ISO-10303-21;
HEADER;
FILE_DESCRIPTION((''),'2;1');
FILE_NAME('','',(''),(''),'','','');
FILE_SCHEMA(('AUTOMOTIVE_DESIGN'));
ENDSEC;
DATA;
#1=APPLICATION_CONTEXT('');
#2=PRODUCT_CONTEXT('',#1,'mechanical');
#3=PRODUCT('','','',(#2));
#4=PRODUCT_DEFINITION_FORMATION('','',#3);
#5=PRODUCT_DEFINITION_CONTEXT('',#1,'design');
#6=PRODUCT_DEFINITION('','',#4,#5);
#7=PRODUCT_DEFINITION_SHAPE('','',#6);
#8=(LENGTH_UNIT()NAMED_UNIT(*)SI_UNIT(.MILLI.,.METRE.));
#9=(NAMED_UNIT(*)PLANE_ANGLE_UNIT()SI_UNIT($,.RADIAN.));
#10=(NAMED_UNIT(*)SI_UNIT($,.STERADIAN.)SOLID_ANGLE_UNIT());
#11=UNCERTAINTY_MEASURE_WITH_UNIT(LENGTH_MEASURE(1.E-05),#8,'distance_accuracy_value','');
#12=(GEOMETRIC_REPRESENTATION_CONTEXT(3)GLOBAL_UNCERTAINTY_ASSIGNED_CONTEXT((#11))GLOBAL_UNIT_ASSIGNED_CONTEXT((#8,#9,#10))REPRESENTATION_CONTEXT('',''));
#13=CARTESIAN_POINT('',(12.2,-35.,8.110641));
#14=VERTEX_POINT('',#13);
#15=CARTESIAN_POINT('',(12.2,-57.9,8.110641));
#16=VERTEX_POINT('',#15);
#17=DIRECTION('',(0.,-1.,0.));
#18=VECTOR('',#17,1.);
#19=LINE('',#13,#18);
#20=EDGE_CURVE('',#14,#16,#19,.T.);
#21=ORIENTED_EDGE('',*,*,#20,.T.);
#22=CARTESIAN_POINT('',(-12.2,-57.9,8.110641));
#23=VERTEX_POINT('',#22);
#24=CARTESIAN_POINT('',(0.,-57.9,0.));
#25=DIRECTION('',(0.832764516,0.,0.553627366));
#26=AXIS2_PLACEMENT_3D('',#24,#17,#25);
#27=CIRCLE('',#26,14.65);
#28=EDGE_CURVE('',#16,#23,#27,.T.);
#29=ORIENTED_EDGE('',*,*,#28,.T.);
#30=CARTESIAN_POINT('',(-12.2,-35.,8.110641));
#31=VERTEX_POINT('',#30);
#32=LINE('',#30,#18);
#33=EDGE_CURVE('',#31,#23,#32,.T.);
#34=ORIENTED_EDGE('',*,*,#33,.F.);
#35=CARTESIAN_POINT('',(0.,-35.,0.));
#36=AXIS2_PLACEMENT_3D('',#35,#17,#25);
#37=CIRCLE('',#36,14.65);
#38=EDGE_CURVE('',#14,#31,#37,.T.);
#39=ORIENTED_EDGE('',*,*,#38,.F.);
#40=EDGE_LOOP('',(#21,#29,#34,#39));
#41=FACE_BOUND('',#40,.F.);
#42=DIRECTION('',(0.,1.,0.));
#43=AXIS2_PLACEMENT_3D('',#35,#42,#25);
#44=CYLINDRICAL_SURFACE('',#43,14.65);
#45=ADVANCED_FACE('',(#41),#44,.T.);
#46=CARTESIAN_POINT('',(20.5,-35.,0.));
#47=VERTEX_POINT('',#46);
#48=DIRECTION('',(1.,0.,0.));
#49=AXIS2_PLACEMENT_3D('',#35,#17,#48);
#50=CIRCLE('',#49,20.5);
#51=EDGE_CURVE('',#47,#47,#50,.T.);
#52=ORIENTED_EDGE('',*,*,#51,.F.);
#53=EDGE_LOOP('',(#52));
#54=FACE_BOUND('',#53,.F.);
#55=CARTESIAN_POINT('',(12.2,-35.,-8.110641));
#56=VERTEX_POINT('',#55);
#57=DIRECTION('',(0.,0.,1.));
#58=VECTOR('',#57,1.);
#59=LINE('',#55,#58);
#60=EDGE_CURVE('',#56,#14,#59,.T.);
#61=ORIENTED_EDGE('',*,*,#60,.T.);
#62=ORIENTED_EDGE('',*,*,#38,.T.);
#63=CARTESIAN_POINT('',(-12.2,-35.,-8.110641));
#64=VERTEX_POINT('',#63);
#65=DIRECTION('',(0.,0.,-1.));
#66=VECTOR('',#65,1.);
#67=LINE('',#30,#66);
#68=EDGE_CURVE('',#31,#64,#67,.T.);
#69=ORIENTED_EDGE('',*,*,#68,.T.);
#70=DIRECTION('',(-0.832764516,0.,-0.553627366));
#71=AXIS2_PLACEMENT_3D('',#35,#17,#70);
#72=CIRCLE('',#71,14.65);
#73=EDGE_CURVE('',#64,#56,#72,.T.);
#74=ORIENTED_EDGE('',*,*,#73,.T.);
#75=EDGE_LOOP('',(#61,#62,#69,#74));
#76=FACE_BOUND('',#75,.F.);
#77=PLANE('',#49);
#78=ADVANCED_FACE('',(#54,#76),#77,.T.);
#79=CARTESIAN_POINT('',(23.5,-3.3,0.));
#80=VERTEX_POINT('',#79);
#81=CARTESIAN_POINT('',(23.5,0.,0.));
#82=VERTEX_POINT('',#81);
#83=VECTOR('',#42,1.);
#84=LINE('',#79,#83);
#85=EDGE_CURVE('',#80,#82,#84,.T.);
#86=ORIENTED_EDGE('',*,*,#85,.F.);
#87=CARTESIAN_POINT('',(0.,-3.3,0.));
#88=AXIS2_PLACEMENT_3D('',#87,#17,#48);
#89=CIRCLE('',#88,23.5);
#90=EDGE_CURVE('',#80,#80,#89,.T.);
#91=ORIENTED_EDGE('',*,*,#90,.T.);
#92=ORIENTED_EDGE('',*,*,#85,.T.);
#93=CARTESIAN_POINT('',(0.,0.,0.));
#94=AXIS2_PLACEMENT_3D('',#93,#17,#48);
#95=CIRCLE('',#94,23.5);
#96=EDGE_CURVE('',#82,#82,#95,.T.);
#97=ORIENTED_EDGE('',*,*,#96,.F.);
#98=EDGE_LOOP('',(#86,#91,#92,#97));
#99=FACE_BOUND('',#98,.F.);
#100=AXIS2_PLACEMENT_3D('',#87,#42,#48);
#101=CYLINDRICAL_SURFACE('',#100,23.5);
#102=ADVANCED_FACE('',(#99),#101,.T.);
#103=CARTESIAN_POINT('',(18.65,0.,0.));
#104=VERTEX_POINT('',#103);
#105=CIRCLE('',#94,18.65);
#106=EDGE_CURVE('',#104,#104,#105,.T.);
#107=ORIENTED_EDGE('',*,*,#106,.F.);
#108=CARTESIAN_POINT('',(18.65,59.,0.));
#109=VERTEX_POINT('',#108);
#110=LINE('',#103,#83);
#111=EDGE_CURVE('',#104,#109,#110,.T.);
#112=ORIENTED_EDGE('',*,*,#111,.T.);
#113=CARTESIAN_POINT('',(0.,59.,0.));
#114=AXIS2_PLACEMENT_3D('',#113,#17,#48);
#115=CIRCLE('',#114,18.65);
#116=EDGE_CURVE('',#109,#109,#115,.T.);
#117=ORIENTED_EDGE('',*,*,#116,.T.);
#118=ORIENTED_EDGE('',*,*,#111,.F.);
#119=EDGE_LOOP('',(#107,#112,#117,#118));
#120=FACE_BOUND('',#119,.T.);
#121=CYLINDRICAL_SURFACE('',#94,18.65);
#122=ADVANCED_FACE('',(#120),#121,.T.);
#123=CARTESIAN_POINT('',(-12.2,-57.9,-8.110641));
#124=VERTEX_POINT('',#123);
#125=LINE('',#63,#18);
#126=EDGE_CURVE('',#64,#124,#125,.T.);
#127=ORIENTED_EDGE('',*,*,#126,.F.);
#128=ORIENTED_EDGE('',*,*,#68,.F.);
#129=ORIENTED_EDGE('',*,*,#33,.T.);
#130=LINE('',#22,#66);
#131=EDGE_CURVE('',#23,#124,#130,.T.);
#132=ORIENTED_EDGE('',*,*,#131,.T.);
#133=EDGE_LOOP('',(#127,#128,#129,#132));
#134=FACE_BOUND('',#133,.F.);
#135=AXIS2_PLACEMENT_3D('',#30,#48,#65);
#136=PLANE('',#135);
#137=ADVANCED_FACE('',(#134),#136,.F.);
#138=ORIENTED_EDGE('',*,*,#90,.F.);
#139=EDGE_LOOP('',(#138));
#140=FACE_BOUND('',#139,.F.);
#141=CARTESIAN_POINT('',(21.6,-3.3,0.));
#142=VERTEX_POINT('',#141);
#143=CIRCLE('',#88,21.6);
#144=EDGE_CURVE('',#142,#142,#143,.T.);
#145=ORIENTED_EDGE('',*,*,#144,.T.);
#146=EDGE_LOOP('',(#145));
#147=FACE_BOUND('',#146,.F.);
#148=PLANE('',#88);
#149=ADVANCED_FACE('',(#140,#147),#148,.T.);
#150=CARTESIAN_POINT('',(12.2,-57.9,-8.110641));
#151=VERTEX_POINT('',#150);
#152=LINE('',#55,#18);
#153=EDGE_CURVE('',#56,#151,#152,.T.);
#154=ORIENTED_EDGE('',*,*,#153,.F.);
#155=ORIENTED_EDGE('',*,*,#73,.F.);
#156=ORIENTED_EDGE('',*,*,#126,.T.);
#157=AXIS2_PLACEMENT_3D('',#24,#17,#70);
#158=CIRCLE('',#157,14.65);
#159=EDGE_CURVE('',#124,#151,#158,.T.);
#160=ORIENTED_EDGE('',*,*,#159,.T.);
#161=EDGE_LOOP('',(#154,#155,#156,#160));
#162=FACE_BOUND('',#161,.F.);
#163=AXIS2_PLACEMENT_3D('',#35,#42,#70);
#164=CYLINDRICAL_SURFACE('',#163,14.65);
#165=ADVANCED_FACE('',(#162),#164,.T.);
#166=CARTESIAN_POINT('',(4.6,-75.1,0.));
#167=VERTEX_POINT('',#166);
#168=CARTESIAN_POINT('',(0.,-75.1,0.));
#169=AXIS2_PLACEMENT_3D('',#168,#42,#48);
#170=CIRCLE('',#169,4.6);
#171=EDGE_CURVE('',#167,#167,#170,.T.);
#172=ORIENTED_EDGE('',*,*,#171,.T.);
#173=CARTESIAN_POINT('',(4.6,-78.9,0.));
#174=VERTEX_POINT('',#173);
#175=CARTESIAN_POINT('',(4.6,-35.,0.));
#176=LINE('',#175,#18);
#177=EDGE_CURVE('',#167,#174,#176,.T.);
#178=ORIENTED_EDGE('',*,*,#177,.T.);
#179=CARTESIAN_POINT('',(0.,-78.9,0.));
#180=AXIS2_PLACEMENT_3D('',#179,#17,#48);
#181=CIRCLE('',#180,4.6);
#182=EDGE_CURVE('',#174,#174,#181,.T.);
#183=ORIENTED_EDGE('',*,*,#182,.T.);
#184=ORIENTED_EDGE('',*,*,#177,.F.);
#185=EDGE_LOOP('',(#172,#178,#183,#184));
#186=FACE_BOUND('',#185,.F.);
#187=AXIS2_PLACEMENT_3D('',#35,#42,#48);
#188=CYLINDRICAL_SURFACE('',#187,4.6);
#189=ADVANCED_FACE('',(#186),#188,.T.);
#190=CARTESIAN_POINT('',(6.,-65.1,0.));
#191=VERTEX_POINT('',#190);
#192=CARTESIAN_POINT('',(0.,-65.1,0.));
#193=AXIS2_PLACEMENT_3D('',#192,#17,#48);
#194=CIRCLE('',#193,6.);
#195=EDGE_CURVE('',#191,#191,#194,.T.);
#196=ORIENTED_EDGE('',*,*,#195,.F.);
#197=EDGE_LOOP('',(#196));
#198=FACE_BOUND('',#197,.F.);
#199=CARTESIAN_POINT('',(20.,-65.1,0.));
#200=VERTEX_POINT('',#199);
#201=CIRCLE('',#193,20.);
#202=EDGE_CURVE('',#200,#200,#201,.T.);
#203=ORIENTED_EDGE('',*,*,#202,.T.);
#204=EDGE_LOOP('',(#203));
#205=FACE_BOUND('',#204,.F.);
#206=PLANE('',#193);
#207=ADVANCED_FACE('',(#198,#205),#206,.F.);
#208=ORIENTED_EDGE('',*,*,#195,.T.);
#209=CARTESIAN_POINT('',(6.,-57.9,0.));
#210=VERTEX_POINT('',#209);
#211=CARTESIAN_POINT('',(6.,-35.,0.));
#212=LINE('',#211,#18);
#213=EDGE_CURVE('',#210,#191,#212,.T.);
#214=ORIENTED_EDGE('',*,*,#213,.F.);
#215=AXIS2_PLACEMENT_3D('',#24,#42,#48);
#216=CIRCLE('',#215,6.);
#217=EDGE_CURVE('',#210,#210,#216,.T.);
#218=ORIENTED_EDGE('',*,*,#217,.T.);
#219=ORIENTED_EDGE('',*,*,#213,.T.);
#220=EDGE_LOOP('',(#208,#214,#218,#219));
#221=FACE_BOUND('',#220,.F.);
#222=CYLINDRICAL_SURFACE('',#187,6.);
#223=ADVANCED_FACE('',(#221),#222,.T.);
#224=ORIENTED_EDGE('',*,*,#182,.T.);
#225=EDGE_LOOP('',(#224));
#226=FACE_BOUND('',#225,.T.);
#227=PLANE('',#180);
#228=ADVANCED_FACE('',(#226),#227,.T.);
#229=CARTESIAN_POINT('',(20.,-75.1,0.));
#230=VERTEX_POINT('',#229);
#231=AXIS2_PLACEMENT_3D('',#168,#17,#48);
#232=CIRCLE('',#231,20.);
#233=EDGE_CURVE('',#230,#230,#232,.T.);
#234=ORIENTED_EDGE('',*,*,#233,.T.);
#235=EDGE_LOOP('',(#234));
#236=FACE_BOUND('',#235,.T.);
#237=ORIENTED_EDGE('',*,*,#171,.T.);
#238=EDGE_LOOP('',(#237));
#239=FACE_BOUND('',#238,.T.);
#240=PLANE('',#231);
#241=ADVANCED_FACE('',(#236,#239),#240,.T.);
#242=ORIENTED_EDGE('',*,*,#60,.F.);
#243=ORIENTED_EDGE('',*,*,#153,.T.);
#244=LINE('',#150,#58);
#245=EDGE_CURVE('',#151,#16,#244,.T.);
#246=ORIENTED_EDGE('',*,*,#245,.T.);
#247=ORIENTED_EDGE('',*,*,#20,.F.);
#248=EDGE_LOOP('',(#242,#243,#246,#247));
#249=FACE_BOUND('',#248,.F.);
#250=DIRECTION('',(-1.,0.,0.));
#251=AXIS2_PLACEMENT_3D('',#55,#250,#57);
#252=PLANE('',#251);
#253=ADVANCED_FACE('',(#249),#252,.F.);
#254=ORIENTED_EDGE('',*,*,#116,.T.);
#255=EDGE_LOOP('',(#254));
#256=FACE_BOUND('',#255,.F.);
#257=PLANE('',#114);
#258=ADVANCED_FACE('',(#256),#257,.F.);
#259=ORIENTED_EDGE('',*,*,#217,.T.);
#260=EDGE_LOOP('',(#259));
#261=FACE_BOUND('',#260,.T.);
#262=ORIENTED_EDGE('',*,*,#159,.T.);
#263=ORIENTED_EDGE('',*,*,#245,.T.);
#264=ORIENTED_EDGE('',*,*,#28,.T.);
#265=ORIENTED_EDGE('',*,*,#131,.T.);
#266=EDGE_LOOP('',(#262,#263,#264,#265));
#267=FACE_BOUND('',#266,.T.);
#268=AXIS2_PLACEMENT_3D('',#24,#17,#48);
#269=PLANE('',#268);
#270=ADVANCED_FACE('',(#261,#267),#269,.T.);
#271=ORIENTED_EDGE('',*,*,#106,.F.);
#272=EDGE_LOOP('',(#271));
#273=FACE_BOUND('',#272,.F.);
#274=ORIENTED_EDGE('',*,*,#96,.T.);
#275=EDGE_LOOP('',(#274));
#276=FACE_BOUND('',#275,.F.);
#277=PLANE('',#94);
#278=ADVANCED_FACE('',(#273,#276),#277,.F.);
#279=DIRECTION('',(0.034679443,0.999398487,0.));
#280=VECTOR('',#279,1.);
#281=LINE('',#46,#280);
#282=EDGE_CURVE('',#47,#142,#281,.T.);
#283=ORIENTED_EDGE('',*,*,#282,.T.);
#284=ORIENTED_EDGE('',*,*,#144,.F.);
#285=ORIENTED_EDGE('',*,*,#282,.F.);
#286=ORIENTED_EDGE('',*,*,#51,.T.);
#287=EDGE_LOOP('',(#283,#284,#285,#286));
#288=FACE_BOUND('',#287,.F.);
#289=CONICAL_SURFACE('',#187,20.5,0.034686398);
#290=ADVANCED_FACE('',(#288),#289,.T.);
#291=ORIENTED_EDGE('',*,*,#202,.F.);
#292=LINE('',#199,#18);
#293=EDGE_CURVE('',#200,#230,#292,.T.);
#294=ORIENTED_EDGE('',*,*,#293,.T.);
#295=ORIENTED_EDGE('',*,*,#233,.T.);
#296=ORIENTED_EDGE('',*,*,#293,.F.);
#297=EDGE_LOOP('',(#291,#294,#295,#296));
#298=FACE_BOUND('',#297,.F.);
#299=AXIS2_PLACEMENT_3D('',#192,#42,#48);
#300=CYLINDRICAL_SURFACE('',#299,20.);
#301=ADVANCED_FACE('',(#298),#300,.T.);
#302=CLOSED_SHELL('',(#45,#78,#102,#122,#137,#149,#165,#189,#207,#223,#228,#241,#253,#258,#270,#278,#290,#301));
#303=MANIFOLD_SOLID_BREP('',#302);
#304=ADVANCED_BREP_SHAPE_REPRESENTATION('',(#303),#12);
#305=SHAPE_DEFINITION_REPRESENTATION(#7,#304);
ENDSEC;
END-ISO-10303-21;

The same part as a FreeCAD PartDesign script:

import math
import FreeCAD as App
import Part
import Sketcher

V = App.Vector
Q = App.Units.Quantity


def add_polygon(sketch, points):
    """Adds a closed chain of lines whose ends are joined by coincident constraints."""
    first, n = sketch.GeometryCount, len(points)
    for a, b in zip(points, points[1:] + points[:1]):
        sketch.addGeometry(Part.LineSegment(App.Vector(*a, 0), App.Vector(*b, 0)), False)
    for i in range(n):
        sketch.addConstraint(Sketcher.Constraint("Coincident", first + i, 2, first + (i + 1) % n, 1))

doc = App.newDocument("Part")
params = doc.addObject("Spreadsheet::Sheet", "Params")
for row, (alias, value) in enumerate([
    ("sketch1_diameter", "37.3 mm"),
    ("pad1_length", "59 mm"),
    ("sketch2_height", "35 mm"),
    ("sketch2_width", "23.5 mm"),
    ("sketch2_width2", "20.5 mm"),
    ("sketch2_width3", "1.9 mm"),
    ("sketch2_height2", "3.3 mm"),
    ("revolution_angle", "360 deg"),
    ("sketch3_radius", "14.65 mm"),
    ("pad2_length", "22.9 mm"),
    ("sketch4_diameter", "12 mm"),
    ("pad3_length", "30.1 mm"),
    ("sketch5_diameter", "9.2 mm"),
    ("pad4_length", "43.9 mm"),
    ("sketch6_diameter", "40 mm"),
    ("pad5_length", "10 mm"),
], start=1):
    params.set(f"A{row}", alias)
    params.set(f"B{row}", "=" + value)
    params.setAlias(f"B{row}", alias)

body = doc.addObject("PartDesign::Body", "Body")

# Sketch on XZ plane
sketch1 = body.newObject("Sketcher::SketchObject", "Sketch")
sketch1.AttachmentSupport = (doc.getObject("XZ_Plane"), [""])
sketch1.MapMode = "FlatFace"
sketch1.addGeometry(Part.Circle(V(0, 0, 0), V(0, 0, 1), 19), False)
sketch1.addConstraint(Sketcher.Constraint("Coincident", 0, 3, -1, 1))
sketch1.addConstraint(Sketcher.Constraint("Diameter", 0, Q("37.3 mm")))
sketch1.setExpression("Constraints[1]", "Params.sketch1_diameter")
pad1 = body.newObject("PartDesign::Pad", "Pad")
pad1.Profile = sketch1
pad1.setExpression("Length", "Params.pad1_length")
pad1.Reversed = True

# Sketch on XY plane
sketch2 = body.newObject("Sketcher::SketchObject", "Sketch001")
sketch2.AttachmentSupport = (doc.getObject("XY_Plane"), [""])
sketch2.MapMode = "FlatFace"
add_polygon(sketch2, [(23.5, 0), (0, 0), (0, -35), (20.5, -35), (21.6, -3.3), (23.5, -3.3)])  # lines 0-5
sketch2.addConstraint(Sketcher.Constraint("Horizontal", 0))
sketch2.addConstraint(Sketcher.Constraint("Vertical", 1))
sketch2.addConstraint(Sketcher.Constraint("Horizontal", 2))
sketch2.addConstraint(Sketcher.Constraint("Horizontal", 4))
sketch2.addConstraint(Sketcher.Constraint("Vertical", 5))
sketch2.addConstraint(Sketcher.Constraint("Coincident", 0, 2, -1, 1))
sketch2.addConstraint(Sketcher.Constraint("DistanceY", 1, 2, 1, 1, Q("35 mm")))
sketch2.addConstraint(Sketcher.Constraint("DistanceX", 0, 2, 0, 1, Q("23.5 mm")))
sketch2.addConstraint(Sketcher.Constraint("DistanceX", 2, 1, 2, 2, Q("20.5 mm")))
sketch2.addConstraint(Sketcher.Constraint("DistanceX", 4, 1, 4, 2, Q("1.9 mm")))
sketch2.addConstraint(Sketcher.Constraint("DistanceY", 5, 1, 5, 2, Q("3.3 mm")))
sketch2.setExpression("Constraints[12]", "Params.sketch2_height")
sketch2.setExpression("Constraints[13]", "Params.sketch2_width")
sketch2.setExpression("Constraints[14]", "Params.sketch2_width2")
sketch2.setExpression("Constraints[15]", "Params.sketch2_width3")
sketch2.setExpression("Constraints[16]", "Params.sketch2_height2")
revolution = body.newObject("PartDesign::Revolution", "Revolution")
revolution.Profile = sketch2
revolution.ReferenceAxis = (sketch2, ["V_Axis"])
revolution.setExpression("Angle", "Params.revolution_angle")

# Sketch on XZ plane
sketch3 = body.newObject("Sketcher::SketchObject", "Sketch002")
sketch3.AttachmentSupport = (doc.getObject("XZ_Plane"), [""])
sketch3.MapMode = "FlatFace"
sketch3.AttachmentOffset = App.Placement(V(0, 0, 35), App.Rotation())
sketch3.addGeometry(Part.ArcOfCircle(Part.Circle(V(0, 0, 0), V(0, 0, 1), 15), math.radians(34), math.radians(146)), False)
sketch3.addGeometry(Part.LineSegment(V(-12, 8, 0), V(-12, -8, 0)), False)
sketch3.addGeometry(Part.ArcOfCircle(Part.Circle(V(0, 0, 0), V(0, 0, 1), 15), math.radians(-146), math.radians(-34)), False)
sketch3.addGeometry(Part.LineSegment(V(12, -8, 0), V(12, 8, 0)), False)
sketch3.addConstraint(Sketcher.Constraint("Coincident", 0, 2, 1, 1))
sketch3.addConstraint(Sketcher.Constraint("Coincident", 1, 2, 2, 1))
sketch3.addConstraint(Sketcher.Constraint("Coincident", 2, 2, 3, 1))
sketch3.addConstraint(Sketcher.Constraint("Coincident", 3, 2, 0, 1))
sketch3.addConstraint(Sketcher.Constraint("Vertical", 1))
sketch3.addConstraint(Sketcher.Constraint("Vertical", 3))
sketch3.addConstraint(Sketcher.Constraint("Coincident", 0, 3, -1, 1))
sketch3.addConstraint(Sketcher.Constraint("Coincident", 2, 3, -1, 1))
sketch3.addConstraint(Sketcher.Constraint("Equal", 0, 2))
sketch3.addConstraint(Sketcher.Constraint("Horizontal", 1, 2, 2, 2))
sketch3.addConstraint(Sketcher.Constraint("Radius", 0, Q("14.65 mm")))
sketch3.addConstraint(Sketcher.Constraint("DistanceX", 0, 2, -1, 1, Q("12.2 mm")))
sketch3.setExpression("Constraints[10]", "Params.sketch3_radius")
pad2 = body.newObject("PartDesign::Pad", "Pad001")
pad2.Profile = sketch3
pad2.setExpression("Length", "Params.pad2_length")

# Sketch on XZ plane
sketch4 = body.newObject("Sketcher::SketchObject", "Sketch003")
sketch4.AttachmentSupport = (doc.getObject("XZ_Plane"), [""])
sketch4.MapMode = "FlatFace"
sketch4.AttachmentOffset = App.Placement(V(0, 0, 35), App.Rotation())
sketch4.addGeometry(Part.Circle(V(0, 0, 0), V(0, 0, 1), 6), False)
sketch4.addConstraint(Sketcher.Constraint("Coincident", 0, 3, -1, 1))
sketch4.addConstraint(Sketcher.Constraint("Diameter", 0, Q("12 mm")))
sketch4.setExpression("Constraints[1]", "Params.sketch4_diameter")
pad3 = body.newObject("PartDesign::Pad", "Pad002")
pad3.Profile = sketch4
pad3.setExpression("Length", "Params.pad3_length")

# Sketch on XZ plane
sketch5 = body.newObject("Sketcher::SketchObject", "Sketch004")
sketch5.AttachmentSupport = (doc.getObject("XZ_Plane"), [""])
sketch5.MapMode = "FlatFace"
sketch5.AttachmentOffset = App.Placement(V(0, 0, 35), App.Rotation())
sketch5.addGeometry(Part.Circle(V(0, 0, 0), V(0, 0, 1), 4.6), False)
sketch5.addConstraint(Sketcher.Constraint("Coincident", 0, 3, -1, 1))
sketch5.addConstraint(Sketcher.Constraint("Diameter", 0, Q("9.2 mm")))
sketch5.setExpression("Constraints[1]", "Params.sketch5_diameter")
pad4 = body.newObject("PartDesign::Pad", "Pad003")
pad4.Profile = sketch5
pad4.setExpression("Length", "Params.pad4_length")

# Sketch on XZ plane
sketch6 = body.newObject("Sketcher::SketchObject", "Sketch005")
sketch6.AttachmentSupport = (doc.getObject("XZ_Plane"), [""])
sketch6.MapMode = "FlatFace"
sketch6.AttachmentOffset = App.Placement(V(0, 0, 65.1), App.Rotation())
sketch6.addGeometry(Part.Circle(V(0, 0, 0), V(0, 0, 1), 20), False)
sketch6.addConstraint(Sketcher.Constraint("Coincident", 0, 3, -1, 1))
sketch6.addConstraint(Sketcher.Constraint("Diameter", 0, Q("40 mm")))
sketch6.setExpression("Constraints[1]", "Params.sketch6_diameter")
pad5 = body.newObject("PartDesign::Pad", "Pad004")
pad5.Profile = sketch6
pad5.setExpression("Length", "Params.pad5_length")

doc.recompute()
